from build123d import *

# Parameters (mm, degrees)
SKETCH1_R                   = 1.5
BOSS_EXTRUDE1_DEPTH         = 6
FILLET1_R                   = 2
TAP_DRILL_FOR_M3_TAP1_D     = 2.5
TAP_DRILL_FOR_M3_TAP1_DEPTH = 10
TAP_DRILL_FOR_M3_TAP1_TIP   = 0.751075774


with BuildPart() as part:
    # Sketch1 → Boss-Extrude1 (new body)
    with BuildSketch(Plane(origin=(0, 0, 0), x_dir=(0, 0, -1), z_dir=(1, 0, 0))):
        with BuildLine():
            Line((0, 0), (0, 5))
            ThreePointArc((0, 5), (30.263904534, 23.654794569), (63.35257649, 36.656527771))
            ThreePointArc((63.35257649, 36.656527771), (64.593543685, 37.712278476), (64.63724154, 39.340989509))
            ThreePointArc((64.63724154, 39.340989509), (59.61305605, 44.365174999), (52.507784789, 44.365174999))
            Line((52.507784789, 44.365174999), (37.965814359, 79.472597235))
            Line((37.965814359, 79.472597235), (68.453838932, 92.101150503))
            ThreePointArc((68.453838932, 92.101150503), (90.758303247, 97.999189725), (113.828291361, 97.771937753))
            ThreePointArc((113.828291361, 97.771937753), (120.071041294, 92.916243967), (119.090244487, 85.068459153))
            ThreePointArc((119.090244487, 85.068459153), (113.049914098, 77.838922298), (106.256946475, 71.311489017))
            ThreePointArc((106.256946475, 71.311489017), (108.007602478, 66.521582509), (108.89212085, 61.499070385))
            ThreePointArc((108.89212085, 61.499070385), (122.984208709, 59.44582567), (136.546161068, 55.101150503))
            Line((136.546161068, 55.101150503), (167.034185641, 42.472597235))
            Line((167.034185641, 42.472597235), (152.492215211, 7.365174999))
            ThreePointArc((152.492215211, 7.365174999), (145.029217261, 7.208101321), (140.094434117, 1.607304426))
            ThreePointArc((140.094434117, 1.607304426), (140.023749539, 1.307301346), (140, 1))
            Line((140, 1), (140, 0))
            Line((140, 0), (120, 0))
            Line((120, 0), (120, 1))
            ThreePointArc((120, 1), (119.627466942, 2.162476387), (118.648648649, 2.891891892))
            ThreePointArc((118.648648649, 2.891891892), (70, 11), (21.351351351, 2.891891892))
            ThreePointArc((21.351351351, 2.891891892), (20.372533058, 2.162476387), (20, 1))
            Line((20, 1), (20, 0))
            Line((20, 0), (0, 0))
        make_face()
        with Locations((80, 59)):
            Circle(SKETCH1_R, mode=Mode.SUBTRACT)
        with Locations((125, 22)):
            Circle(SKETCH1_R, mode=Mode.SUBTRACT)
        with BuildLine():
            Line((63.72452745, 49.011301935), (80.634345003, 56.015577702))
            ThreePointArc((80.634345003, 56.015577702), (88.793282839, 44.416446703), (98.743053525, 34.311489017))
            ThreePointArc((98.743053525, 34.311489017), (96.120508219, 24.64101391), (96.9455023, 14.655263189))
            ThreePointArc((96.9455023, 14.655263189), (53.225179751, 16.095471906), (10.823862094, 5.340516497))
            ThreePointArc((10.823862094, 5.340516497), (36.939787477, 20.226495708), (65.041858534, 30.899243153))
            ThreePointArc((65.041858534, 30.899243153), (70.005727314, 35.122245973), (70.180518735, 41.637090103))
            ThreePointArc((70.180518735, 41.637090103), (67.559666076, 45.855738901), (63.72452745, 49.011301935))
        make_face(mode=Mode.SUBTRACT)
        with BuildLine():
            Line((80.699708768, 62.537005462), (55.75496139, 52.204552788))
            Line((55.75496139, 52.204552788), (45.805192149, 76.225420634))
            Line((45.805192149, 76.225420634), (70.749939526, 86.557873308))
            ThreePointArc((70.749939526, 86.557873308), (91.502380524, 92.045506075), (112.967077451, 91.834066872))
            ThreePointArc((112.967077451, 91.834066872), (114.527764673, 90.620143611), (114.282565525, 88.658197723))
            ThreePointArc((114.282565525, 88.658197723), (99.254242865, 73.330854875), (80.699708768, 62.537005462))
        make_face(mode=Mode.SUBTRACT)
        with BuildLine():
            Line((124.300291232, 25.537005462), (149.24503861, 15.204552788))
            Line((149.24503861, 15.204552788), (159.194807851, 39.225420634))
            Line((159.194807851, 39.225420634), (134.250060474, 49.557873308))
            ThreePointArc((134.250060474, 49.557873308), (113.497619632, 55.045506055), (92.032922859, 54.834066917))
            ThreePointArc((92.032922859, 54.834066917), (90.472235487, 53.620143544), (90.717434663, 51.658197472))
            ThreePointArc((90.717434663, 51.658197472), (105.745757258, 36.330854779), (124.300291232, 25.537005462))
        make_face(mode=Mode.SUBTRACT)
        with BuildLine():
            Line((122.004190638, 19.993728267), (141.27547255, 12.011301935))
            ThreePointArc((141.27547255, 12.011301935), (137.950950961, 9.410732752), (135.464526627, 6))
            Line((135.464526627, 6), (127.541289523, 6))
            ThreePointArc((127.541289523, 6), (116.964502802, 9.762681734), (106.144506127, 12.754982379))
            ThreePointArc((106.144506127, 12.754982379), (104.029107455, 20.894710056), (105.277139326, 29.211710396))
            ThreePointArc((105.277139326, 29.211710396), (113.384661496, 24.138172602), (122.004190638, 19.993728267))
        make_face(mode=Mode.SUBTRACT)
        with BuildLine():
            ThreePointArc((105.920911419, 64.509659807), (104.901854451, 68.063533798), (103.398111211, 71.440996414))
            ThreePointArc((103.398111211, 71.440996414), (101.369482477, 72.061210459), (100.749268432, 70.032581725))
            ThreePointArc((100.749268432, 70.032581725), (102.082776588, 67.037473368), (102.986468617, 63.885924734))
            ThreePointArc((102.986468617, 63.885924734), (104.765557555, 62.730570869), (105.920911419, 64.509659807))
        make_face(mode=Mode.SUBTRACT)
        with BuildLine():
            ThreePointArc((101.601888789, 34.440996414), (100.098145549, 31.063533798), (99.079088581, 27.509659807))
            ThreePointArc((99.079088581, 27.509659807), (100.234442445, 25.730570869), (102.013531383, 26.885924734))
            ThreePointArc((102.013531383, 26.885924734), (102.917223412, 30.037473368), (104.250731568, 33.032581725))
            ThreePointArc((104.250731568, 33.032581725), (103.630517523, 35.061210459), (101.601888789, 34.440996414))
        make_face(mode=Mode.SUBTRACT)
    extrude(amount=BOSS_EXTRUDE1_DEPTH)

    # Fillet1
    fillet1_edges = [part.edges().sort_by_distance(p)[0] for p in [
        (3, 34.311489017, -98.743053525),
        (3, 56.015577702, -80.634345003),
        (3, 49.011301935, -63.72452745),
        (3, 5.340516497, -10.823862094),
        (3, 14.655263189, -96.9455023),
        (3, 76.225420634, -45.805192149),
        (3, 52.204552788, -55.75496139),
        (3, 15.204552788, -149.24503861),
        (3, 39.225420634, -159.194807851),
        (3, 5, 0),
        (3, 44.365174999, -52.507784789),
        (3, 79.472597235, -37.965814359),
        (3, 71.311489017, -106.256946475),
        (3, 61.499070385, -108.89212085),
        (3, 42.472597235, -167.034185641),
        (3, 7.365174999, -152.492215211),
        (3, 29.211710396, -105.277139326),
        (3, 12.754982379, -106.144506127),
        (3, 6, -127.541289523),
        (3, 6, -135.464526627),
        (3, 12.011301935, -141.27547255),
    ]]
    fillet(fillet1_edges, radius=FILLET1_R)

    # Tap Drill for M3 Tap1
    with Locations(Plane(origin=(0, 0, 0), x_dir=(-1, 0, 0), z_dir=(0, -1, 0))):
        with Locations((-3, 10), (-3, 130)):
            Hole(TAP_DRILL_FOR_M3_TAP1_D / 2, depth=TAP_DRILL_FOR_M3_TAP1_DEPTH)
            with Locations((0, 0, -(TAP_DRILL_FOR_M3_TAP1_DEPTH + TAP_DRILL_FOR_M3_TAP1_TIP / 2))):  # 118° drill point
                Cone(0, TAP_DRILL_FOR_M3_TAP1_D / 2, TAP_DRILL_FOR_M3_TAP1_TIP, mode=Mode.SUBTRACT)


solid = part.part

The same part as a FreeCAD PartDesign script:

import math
import FreeCAD as App
import Part
import Sketcher
from FreeCAD import Vector
Q = App.Units.Quantity


def edges_at(feature, points):
    """Names of the edges that pass closest to the given points."""
    edges = feature.Shape.Edges
    near = lambda p: min(range(len(edges)), key=lambda i: edges[i].distToShape(Part.Vertex(*p))[0])
    return sorted({f"Edge{near(p) + 1}" for p in points})

doc = App.newDocument("Part")
body = doc.addObject("PartDesign::Body", "Body")

sketch1 = body.newObject("Sketcher::SketchObject", "Sketch")
sketch1.AttachmentSupport = (doc.getObject("YZ_Plane"), [""])
sketch1.MapMode = "FlatFace"
sketch1.addGeometry(Part.LineSegment(Vector(5, 0, 0), Vector(0, 0, 0)), False)
sketch1.addGeometry(Part.LineSegment(Vector(0, 0, 0), Vector(0, -20, 0)), False)
sketch1.addGeometry(Part.LineSegment(Vector(0, -20, 0), Vector(1, -20, 0)), False)
sketch1.addGeometry(Part.ArcOfCircle(Part.Circle(Vector(1, -22, 0), Vector(0, 0, 1), 2), math.radians(19), math.radians(90)), False)
sketch1.addGeometry(Part.ArcOfCircle(Part.Circle(Vector(-139, -70, 0), Vector(0, 0, 1), 150), math.radians(-19), math.radians(19)), False)
sketch1.addGeometry(Part.ArcOfCircle(Part.Circle(Vector(1, -118, 0), Vector(0, 0, 1), 2), math.radians(-90), math.radians(-19)), False)
sketch1.addGeometry(Part.LineSegment(Vector(1, -120, 0), Vector(0, -120, 0)), False)
sketch1.addGeometry(Part.LineSegment(Vector(0, -120, 0), Vector(0, -140, 0)), False)
sketch1.addGeometry(Part.LineSegment(Vector(0, -140, 0), Vector(1, -140, 0)), False)
sketch1.addGeometry(Part.ArcOfCircle(Part.Circle(Vector(1, -142, 0), Vector(0, 0, 1), 2), math.radians(72.32), math.radians(90)), False)
sketch1.addGeometry(Part.ArcOfCircle(Part.Circle(Vector(-1.2, -148.9, 0), Vector(0, 0, 1), 9.3), math.radians(-23), math.radians(72)), False)
sketch1.addGeometry(Part.LineSegment(Vector(7.4, -152.5, 0), Vector(42.5, -167, 0)), False)
sketch1.addGeometry(Part.LineSegment(Vector(42.5, -167, 0), Vector(55.1, -136.5, 0)), False)
sketch1.addGeometry(Part.ArcOfCircle(Part.Circle(Vector(-24.6, -103.5, 0), Vector(0, 0, 1), 86.2), math.radians(-22.5), math.radians(-3.55)), False)
sketch1.addGeometry(Part.ArcOfCircle(Part.Circle(Vector(59, -80, 0), Vector(0, 0, 1), 29), math.radians(-85), math.radians(-65)), False)
sketch1.addGeometry(Part.ArcOfCircle(Part.Circle(Vector(136.7, -50, 0), Vector(0, 0, 1), 86.2), math.radians(-139.27), math.radians(-126.75)), False)
sketch1.addGeometry(Part.ArcOfCircle(Part.Circle(Vector(89.9, -112.7, 0), Vector(0, 0, 1), 8), math.radians(-127), math.radians(-8)), False)
sketch1.addGeometry(Part.ArcOfCircle(Part.Circle(Vector(12.4, -101.5, 0), Vector(0, 0, 1), 86.2), math.radians(-8), math.radians(22)), False)
sketch1.addGeometry(Part.LineSegment(Vector(92.1, -68.5, 0), Vector(79.5, -38, 0)), False)
sketch1.addGeometry(Part.LineSegment(Vector(79.5, -38, 0), Vector(44.4, -52.5, 0)), False)
sketch1.addGeometry(Part.ArcOfCircle(Part.Circle(Vector(35.8, -56.1, 0), Vector(0, 0, 1), 9.3), math.radians(-67), math.radians(22)), False)
sketch1.addGeometry(Part.ArcOfCircle(Part.Circle(Vector(38.6, -62.8, 0), Vector(0, 0, 1), 2), math.radians(-164), math.radians(-67)), False)
sketch1.addGeometry(Part.ArcOfCircle(Part.Circle(Vector(-155.3, -119.7, 0), Vector(0, 0, 1), 200), math.radians(16), math.radians(37)), False)
sketch1.addGeometry(Part.LineSegment(Vector(20, -122, 0), Vector(12, -141.3, 0)), False)
sketch1.addGeometry(Part.ArcOfCircle(Part.Circle(Vector(-1.2, -148.9, 0), Vector(0, 0, 1), 15.3), math.radians(30), math.radians(62)), False)
sketch1.addGeometry(Part.LineSegment(Vector(6, -135.5, 0), Vector(6, -127.5, 0)), False)
sketch1.addGeometry(Part.ArcOfCircle(Part.Circle(Vector(-139, -70, 0), Vector(0, 0, 1), 156), math.radians(-21.64), math.radians(-13.4)), False)
sketch1.addGeometry(Part.ArcOfCircle(Part.Circle(Vector(22, -125, 0), Vector(0, 0, 1), 21), math.radians(70), math.radians(116)), False)
sketch1.addGeometry(Part.ArcOfCircle(Part.Circle(Vector(99.7, -155, 0), Vector(0, 0, 1), 86.2), math.radians(144.78), math.radians(157.5)), False)
sketch1.addGeometry(Part.Circle(Vector(22, -125, 0), Vector(0, 0, 1), 1.5), False)
sketch1.addGeometry(Part.ArcOfCircle(Part.Circle(Vector(99.7, -155, 0), Vector(0, 0, 1), 80.2), math.radians(127), math.radians(158)), False)
sketch1.addGeometry(Part.ArcOfCircle(Part.Circle(Vector(52.9, -92.3, 0), Vector(0, 0, 1), 2), math.radians(8), math.radians(127)), False)
sketch1.addGeometry(Part.ArcOfCircle(Part.Circle(Vector(-24.6, -103.5, 0), Vector(0, 0, 1), 80.2), math.radians(-22), math.radians(8)), False)
sketch1.addGeometry(Part.LineSegment(Vector(49.6, -134.3, 0), Vector(39.2, -159.2, 0)), False)
sketch1.addGeometry(Part.LineSegment(Vector(39.2, -159.2, 0), Vector(15.2, -149.2, 0)), False)
sketch1.addGeometry(Part.LineSegment(Vector(15.2, -149.2, 0), Vector(25.5, -124.3, 0)), False)
sketch1.addGeometry(Part.ArcOfCircle(Part.Circle(Vector(33.7, -102.9, 0), Vector(0, 0, 1), 1.5), math.radians(-118), math.radians(62)), False)
sketch1.addGeometry(Part.ArcOfCircle(Part.Circle(Vector(22, -125, 0), Vector(0, 0, 1), 23.5), math.radians(62), math.radians(78)), False)
sketch1.addGeometry(Part.ArcOfCircle(Part.Circle(Vector(27.2, -100.5, 0), Vector(0, 0, 1), 1.5), math.radians(78), math.radians(258)), False)
sketch1.addGeometry(Part.ArcOfCircle(Part.Circle(Vector(22, -125, 0), Vector(0, 0, 1), 26.5), math.radians(62), math.radians(78)), False)
sketch1.addGeometry(Part.LineSegment(Vector(49, -63.7, 0), Vector(56, -80.6, 0)), False)
sketch1.addGeometry(Part.ArcOfCircle(Part.Circle(Vector(99.7, -155, 0), Vector(0, 0, 1), 86.2), math.radians(120.41), math.radians(139.27)), False)
sketch1.addGeometry(Part.ArcOfCircle(Part.Circle(Vector(22, -125, 0), Vector(0, 0, 1), 29), math.radians(65), math.radians(105)), False)
sketch1.addGeometry(Part.ArcOfCircle(Part.Circle(Vector(-139, -70, 0), Vector(0, 0, 1), 156), math.radians(-10), math.radians(22)), False)
sketch1.addGeometry(Part.ArcOfCircle(Part.Circle(Vector(-155.3, -119.7, 0), Vector(0, 0, 1), 194), math.radians(16.35), math.radians(34.13)), False)
sketch1.addGeometry(Part.ArcOfCircle(Part.Circle(Vector(38.6, -62.8, 0), Vector(0, 0, 1), 8), math.radians(-164), math.radians(-67)), False)
sketch1.addGeometry(Part.ArcOfCircle(Part.Circle(Vector(35.8, -56.1, 0), Vector(0, 0, 1), 15.3), math.radians(-67), math.radians(-30)), False)
sketch1.addGeometry(Part.ArcOfCircle(Part.Circle(Vector(64.2, -104.5, 0), Vector(0, 0, 1), 1.5), math.radians(102), math.radians(282)), False)
sketch1.addGeometry(Part.ArcOfCircle(Part.Circle(Vector(59, -80, 0), Vector(0, 0, 1), 23.5), math.radians(-78), math.radians(-62)), False)
sketch1.addGeometry(Part.ArcOfCircle(Part.Circle(Vector(70.7, -102.1, 0), Vector(0, 0, 1), 1.5), math.radians(-62), math.radians(118)), False)
sketch1.addGeometry(Part.ArcOfCircle(Part.Circle(Vector(59, -80, 0), Vector(0, 0, 1), 26.5), math.radians(-78), math.radians(-62)), False)
sketch1.addGeometry(Part.Circle(Vector(59, -80, 0), Vector(0, 0, 1), 1.5), False)
sketch1.addGeometry(Part.LineSegment(Vector(62.5, -80.7, 0), Vector(52.2, -55.8, 0)), False)
sketch1.addGeometry(Part.LineSegment(Vector(52.2, -55.8, 0), Vector(76.2, -45.8, 0)), False)
sketch1.addGeometry(Part.LineSegment(Vector(76.2, -45.8, 0), Vector(86.6, -70.7, 0)), False)
sketch1.addGeometry(Part.ArcOfCircle(Part.Circle(Vector(12.4, -101.5, 0), Vector(0, 0, 1), 80.2), math.radians(-8), math.radians(22)), False)
sketch1.addGeometry(Part.ArcOfCircle(Part.Circle(Vector(89.9, -112.7, 0), Vector(0, 0, 1), 2), math.radians(-127), math.radians(-8)), False)
sketch1.addGeometry(Part.ArcOfCircle(Part.Circle(Vector(136.7, -50, 0), Vector(0, 0, 1), 80.2), math.radians(-157), math.radians(-127)), False)
sketch1.addConstraint(Sketcher.Constraint("Coincident", 0, 2, 1, 1))
sketch1.addConstraint(Sketcher.Constraint("Coincident", 1, 2, 2, 1))
sketch1.addConstraint(Sketcher.Constraint("Tangent", 2, 2, 3, 2))
sketch1.addConstraint(Sketcher.Constraint("Tangent", 3, 1, 4, 2))
sketch1.addConstraint(Sketcher.Constraint("Tangent", 4, 1, 5, 2))
sketch1.addConstraint(Sketcher.Constraint("Tangent", 5, 1, 6, 1))
sketch1.addConstraint(Sketcher.Constraint("Coincident", 6, 2, 7, 1))
sketch1.addConstraint(Sketcher.Constraint("Coincident", 7, 2, 8, 1))
sketch1.addConstraint(Sketcher.Constraint("Tangent", 8, 2, 9, 2))
sketch1.addConstraint(Sketcher.Constraint("Tangent", 9, 1, 10, 2))
sketch1.addConstraint(Sketcher.Constraint("Coincident", 10, 1, 11, 1))
sketch1.addConstraint(Sketcher.Constraint("Coincident", 11, 2, 12, 1))
sketch1.addConstraint(Sketcher.Constraint("Tangent", 12, 2, 13, 1))
sketch1.addConstraint(Sketcher.Constraint("Coincident", 13, 2, 14, 1))
sketch1.addConstraint(Sketcher.Constraint("Coincident", 14, 2, 15, 1))
sketch1.addConstraint(Sketcher.Constraint("Tangent", 15, 2, 16, 1))
sketch1.addConstraint(Sketcher.Constraint("Tangent", 16, 2, 17, 1))
sketch1.addConstraint(Sketcher.Constraint("Tangent", 17, 2, 18, 1))
sketch1.addConstraint(Sketcher.Constraint("Coincident", 18, 2, 19, 1))
sketch1.addConstraint(Sketcher.Constraint("Coincident", 19, 2, 20, 2))
sketch1.addConstraint(Sketcher.Constraint("Tangent", 20, 1, 21, 2))
sketch1.addConstraint(Sketcher.Constraint("Tangent", 21, 1, 22, 1))
sketch1.addConstraint(Sketcher.Constraint("Coincident", 22, 2, 0, 1))
sketch1.addConstraint(Sketcher.Constraint("Coincident", 23, 2, 24, 1))
sketch1.addConstraint(Sketcher.Constraint("Coincident", 24, 2, 25, 1))
sketch1.addConstraint(Sketcher.Constraint("Coincident", 25, 2, 26, 1))
sketch1.addConstraint(Sketcher.Constraint("Coincident", 26, 2, 27, 2))
sketch1.addConstraint(Sketcher.Constraint("Coincident", 27, 1, 28, 1))
sketch1.addConstraint(Sketcher.Constraint("Tangent", 28, 2, 23, 1))
sketch1.addConstraint(Sketcher.Constraint("Tangent", 30, 1, 31, 2))
sketch1.addConstraint(Sketcher.Constraint("Tangent", 31, 1, 32, 2))
sketch1.addConstraint(Sketcher.Constraint("Tangent", 32, 1, 33, 1))
sketch1.addConstraint(Sketcher.Constraint("Coincident", 33, 2, 34, 1))
sketch1.addConstraint(Sketcher.Constraint("Coincident", 34, 2, 35, 1))
sketch1.addConstraint(Sketcher.Constraint("Tangent", 35, 2, 30, 2))
sketch1.addConstraint(Sketcher.Constraint("Tangent", 36, 1, 37, 1))
sketch1.addConstraint(Sketcher.Constraint("Tangent", 37, 2, 38, 2))
sketch1.addConstraint(Sketcher.Constraint("Tangent", 38, 1, 39, 2))
sketch1.addConstraint(Sketcher.Constraint("Tangent", 39, 1, 36, 2))
sketch1.addConstraint(Sketcher.Constraint("Coincident", 40, 2, 41, 1))
sketch1.addConstraint(Sketcher.Constraint("Coincident", 41, 2, 42, 1))
sketch1.addConstraint(Sketcher.Constraint("Coincident", 42, 2, 43, 1))
sketch1.addConstraint(Sketcher.Constraint("Coincident", 43, 2, 44, 2))
sketch1.addConstraint(Sketcher.Constraint("Tangent", 44, 1, 45, 1))
sketch1.addConstraint(Sketcher.Constraint("Tangent", 45, 2, 46, 1))
sketch1.addConstraint(Sketcher.Constraint("Coincident", 46, 2, 40, 1))
sketch1.addConstraint(Sketcher.Constraint("Tangent", 47, 1, 48, 1))
sketch1.addConstraint(Sketcher.Constraint("Tangent", 48, 2, 49, 2))
sketch1.addConstraint(Sketcher.Constraint("Tangent", 49, 1, 50, 2))
sketch1.addConstraint(Sketcher.Constraint("Tangent", 50, 1, 47, 2))
sketch1.addConstraint(Sketcher.Constraint("Coincident", 52, 2, 53, 1))
sketch1.addConstraint(Sketcher.Constraint("Coincident", 53, 2, 54, 1))
sketch1.addConstraint(Sketcher.Constraint("Tangent", 54, 2, 55, 2))
sketch1.addConstraint(Sketcher.Constraint("Tangent", 55, 1, 56, 2))
sketch1.addConstraint(Sketcher.Constraint("Tangent", 56, 1, 57, 2))
sketch1.addConstraint(Sketcher.Constraint("Tangent", 57, 1, 52, 1))
sketch1.addConstraint(Sketcher.Constraint("Horizontal", 0))
sketch1.addConstraint(Sketcher.Constraint("Vertical", 1))
sketch1.addConstraint(Sketcher.Constraint("Horizontal", 2))
sketch1.addConstraint(Sketcher.Constraint("Horizontal", 6))
sketch1.addConstraint(Sketcher.Constraint("Vertical", 7))
sketch1.addConstraint(Sketcher.Constraint("Horizontal", 8))
sketch1.addConstraint(Sketcher.Constraint("Vertical", 25))
sketch1.addConstraint(Sketcher.Constraint("Coincident", 0, 2, -1, 1))
sketch1.addConstraint(Sketcher.Constraint("Coincident", 24, 3, 10, 3))
sketch1.addConstraint(Sketcher.Constraint("Coincident", 26, 3, 4, 3))
sketch1.addConstraint(Sketcher.Constraint("Coincident", 29, 3, 27, 3))
sketch1.addConstraint(Sketcher.Constraint("Coincident", 30, 3, 28, 3))
sketch1.addConstraint(Sketcher.Constraint("Coincident", 32, 3, 13, 3))
sketch1.addConstraint(Sketcher.Constraint("Coincident", 37, 3, 27, 3))
sketch1.addConstraint(Sketcher.Constraint("Coincident", 39, 3, 27, 3))
sketch1.addConstraint(Sketcher.Constraint("Coincident", 41, 3, 28, 3))
sketch1.addConstraint(Sketcher.Constraint("Coincident", 42, 3, 27, 3))
sketch1.addConstraint(Sketcher.Constraint("Coincident", 43, 3, 4, 3))
sketch1.addConstraint(Sketcher.Constraint("Coincident", 44, 3, 22, 3))
sketch1.addConstraint(Sketcher.Constraint("Coincident", 45, 3, 21, 3))
sketch1.addConstraint(Sketcher.Constraint("Coincident", 46, 3, 20, 3))
sketch1.addConstraint(Sketcher.Constraint("Coincident", 48, 3, 14, 3))
sketch1.addConstraint(Sketcher.Constraint("Coincident", 50, 3, 14, 3))
sketch1.addConstraint(Sketcher.Constraint("Coincident", 51, 3, 14, 3))
sketch1.addConstraint(Sketcher.Constraint("Coincident", 55, 3, 17, 3))
sketch1.addConstraint(Sketcher.Constraint("Coincident", 56, 3, 16, 3))
sketch1.addConstraint(Sketcher.Constraint("Coincident", 57, 3, 15, 3))
sketch1.addConstraint(Sketcher.Constraint("Equal", 3, 5))
sketch1.addConstraint(Sketcher.Constraint("Equal", 5, 9))
sketch1.addConstraint(Sketcher.Constraint("Equal", 13, 15))
sketch1.addConstraint(Sketcher.Constraint("Equal", 15, 17))
sketch1.addConstraint(Sketcher.Constraint("Equal", 10, 20))
sketch1.addConstraint(Sketcher.Constraint("Equal", 9, 21))
sketch1.addConstraint(Sketcher.Constraint("Equal", 17, 28))
sketch1.addConstraint(Sketcher.Constraint("Equal", 21, 31))
sketch1.addConstraint(Sketcher.Constraint("Equal", 30, 32))
sketch1.addConstraint(Sketcher.Constraint("Equal", 29, 36))
sketch1.addConstraint(Sketcher.Constraint("Equal", 28, 41))
sketch1.addConstraint(Sketcher.Constraint("Equal", 14, 42))
sketch1.addConstraint(Sketcher.Constraint("Equal", 26, 43))
sketch1.addConstraint(Sketcher.Constraint("Equal", 16, 45))
sketch1.addConstraint(Sketcher.Constraint("Equal", 24, 46))
sketch1.addConstraint(Sketcher.Constraint("Equal", 38, 47))
sketch1.addConstraint(Sketcher.Constraint("Equal", 37, 48))
sketch1.addConstraint(Sketcher.Constraint("Equal", 49, 51))
sketch1.addConstraint(Sketcher.Constraint("Equal", 32, 55))
sketch1.addConstraint(Sketcher.Constraint("Equal", 31, 56))
sketch1.addConstraint(Sketcher.Constraint("PointOnObject", 6, 2, -2))
sketch1.addConstraint(Sketcher.Constraint("Perpendicular", 11, 12))
sketch1.addConstraint(Sketcher.Constraint("Perpendicular", 18, 19))
sketch1.addConstraint(Sketcher.Constraint("Parallel", 12, 23))
sketch1.addConstraint(Sketcher.Constraint("Parallel", 23, 33))
sketch1.addConstraint(Sketcher.Constraint("Perpendicular", 33, 34))
sketch1.addConstraint(Sketcher.Constraint("Perpendicular", 34, 35))
sketch1.addConstraint(Sketcher.Constraint("Perpendicular", 19, 40))
sketch1.addConstraint(Sketcher.Constraint("Parallel", 40, 52))
sketch1.addConstraint(Sketcher.Constraint("Perpendicular", 52, 53))
sketch1.addConstraint(Sketcher.Constraint("Perpendicular", 53, 54))
sketch1.addConstraint(Sketcher.Constraint("Vertical", 3, 3, 5, 3))
sketch1.addConstraint(Sketcher.Constraint("Vertical", 5, 3, 9, 3))
sketch1.addConstraint(Sketcher.Constraint("Equal", 1, 7))
sketch1.addConstraint(Sketcher.Constraint("Equal", 12, 18))
sketch1.addConstraint(Sketcher.Constraint("Equal", 11, 19))
sketch1.addConstraint(Sketcher.Constraint("Equal", 33, 35))
sketch1.addConstraint(Sketcher.Constraint("Equal", 35, 52))
sketch1.addConstraint(Sketcher.Constraint("Equal", 34, 53))
sketch1.addConstraint(Sketcher.Constraint("Equal", 52, 54))
sketch1.addConstraint(Sketcher.Constraint("Diameter", 29, 3.0))
sketch1.addConstraint(Sketcher.Constraint("Radius", 3, 2.0))
sketch1.addConstraint(Sketcher.Constraint("Radius", 4, 150.0))
sketch1.addConstraint(Sketcher.Constraint("Radius", 14, 29.0))
sketch1.addConstraint(Sketcher.Constraint("Radius", 16, 8.0))
sketch1.addConstraint(Sketcher.Constraint("Radius", 22, 200.0))
sketch1.addConstraint(Sketcher.Constraint("Radius", 26, 156.0))
sketch1.addConstraint(Sketcher.Constraint("Radius", 27, 21.0))
sketch1.addConstraint(Sketcher.Constraint("Radius", 37, 23.5))
sketch1.addConstraint(Sketcher.Constraint("DistanceX", 0, 2, 0, 1, 5.0))
sketch1.addConstraint(Sketcher.Constraint("DistanceX", 2, 1, 2, 2, 1.0))
sketch1.addConstraint(Sketcher.Constraint("DistanceY", 1, 2, 1, 1, 20.0))
sketch1.addConstraint(Sketcher.Constraint("Distance", 11, 38.0))
sketch1.addConstraint(Sketcher.Constraint("Distance", 12, 33.0))
sketch1.addConstraint(Sketcher.Constraint("Distance", 33, 27.0))
sketch1.addConstraint(Sketcher.Constraint("Distance", 34, 26.0))
sketch1.addConstraint(Sketcher.Constraint("DistanceX", 4, 3, -1, 1, 139.0))
sketch1.addConstraint(Sketcher.Constraint("DistanceX", -1, 1, 14, 3, 59.0))
sketch1.addConstraint(Sketcher.Constraint("DistanceY", 14, 3, -1, 1, 80.0))
sketch1.addConstraint(Sketcher.Constraint("DistanceX", -1, 1, 27, 3, 22.0))
sketch1.addConstraint(Sketcher.Constraint("DistanceY", 27, 3, -1, 1, 125.0))
sketch1.addConstraint(Sketcher.Constraint("DistanceX", -1, 1, 24, 2, 6.0))
sketch1.addConstraint(Sketcher.Constraint("Angle", 11, Q("-22.5 deg")))
sketch1.addConstraint(Sketcher.Constraint("Angle", 18, Q("112.5 deg")))
sketch1.addConstraint(Sketcher.Constraint("Radius", 10, 9.283484))
sketch1.addConstraint(Sketcher.Constraint("Radius", 13, 86.227273))
sketch1.addConstraint(Sketcher.Constraint("DistanceX", -1, 1, 23, 2, 12.011302))
sketch1.addConstraint(Sketcher.Constraint("DistanceX", -1, 1, 46, 2, 49.011302))
sketch1.addConstraint(Sketcher.Constraint("DistanceX", 13, 3, -1, 1, 24.562462))
sketch1.addConstraint(Sketcher.Constraint("DistanceX", -1, 1, 15, 3, 136.657341))
sketch1.addConstraint(Sketcher.Constraint("DistanceY", 15, 3, -1, 1, 49.998061))
sketch1.addConstraint(Sketcher.Constraint("DistanceY", 20, 3, -1, 1, 56.06042))
sketch1.addConstraint(Sketcher.Constraint("DistanceX", 22, 3, -1, 1, 155.252959))
sketch1.addConstraint(Sketcher.Constraint("DistanceX", -1, 1, 36, 3, 33.736789))
sketch1.addConstraint(Sketcher.Constraint("DistanceY", 38, 3, -1, 1, 100.54631))
sketch1.addConstraint(Sketcher.Constraint("DistanceY", 47, 3, -1, 1, 104.45369))
sketch1.addConstraint(Sketcher.Constraint("DistanceX", -1, 1, 49, 3, 70.736789))
pad1 = body.newObject("PartDesign::Pad", "Pad")
pad1.Profile = sketch1
pad1.Length = 6
doc.recompute()

fillet = body.newObject("PartDesign::Fillet", "Fillet")
fillet.Base = (pad1, edges_at(pad1, [
    (3, 34.311, -98.743),
    (3, 56.016, -80.634),
    (3, 49.011, -63.725),
    (3, 5.341, -10.824),
    (3, 14.655, -96.946),
    (3, 76.225, -45.805),
    (3, 52.205, -55.755),
    (3, 15.205, -149.245),
    (3, 39.225, -159.195),
    (3, 5, 0),
    (3, 44.365, -52.508),
    (3, 79.473, -37.966),
    (3, 71.311, -106.257),
    (3, 61.499, -108.892),
    (3, 42.473, -167.034),
    (3, 7.365, -152.492),
    (3, 29.212, -105.277),
    (3, 12.755, -106.145),
    (3, 6, -127.541),
    (3, 6, -135.465),
    (3, 12.011, -141.275),
]))
fillet.Radius = 2

sketch2 = body.newObject("Sketcher::SketchObject", "Sketch001")
sketch2.AttachmentSupport = (doc.getObject("XZ_Plane"), [""])
sketch2.MapMode = "FlatFace"
sketch2.addGeometry(Part.Circle(Vector(3, -10, 0), Vector(0, 0, 1), 1.2), False)
sketch2.addGeometry(Part.Circle(Vector(3, -130, 0), Vector(0, 0, 1), 1.2), False)
sketch2.addConstraint(Sketcher.Constraint("Equal", 0, 1))
sketch2.addConstraint(Sketcher.Constraint("Vertical", 0, 3, 1, 3))
sketch2.addConstraint(Sketcher.Constraint("Diameter", 0, 2.5))
sketch2.addConstraint(Sketcher.Constraint("DistanceX", -1, 1, 0, 3, 3.0))
sketch2.addConstraint(Sketcher.Constraint("DistanceY", 0, 3, -1, 1, 10.0))
sketch2.addConstraint(Sketcher.Constraint("DistanceY", 1, 3, -1, 1, 130.0))
doc.recompute()
hole = body.newObject("PartDesign::Hole", "Hole")
hole.Profile = sketch2
hole.ThreadType = "None"
hole.Diameter = 2.5
hole.DepthType = "Dimension"
hole.Depth = 10
hole.DrillPoint = "Angled"
hole.DrillPointAngle = 118

doc.recompute()
